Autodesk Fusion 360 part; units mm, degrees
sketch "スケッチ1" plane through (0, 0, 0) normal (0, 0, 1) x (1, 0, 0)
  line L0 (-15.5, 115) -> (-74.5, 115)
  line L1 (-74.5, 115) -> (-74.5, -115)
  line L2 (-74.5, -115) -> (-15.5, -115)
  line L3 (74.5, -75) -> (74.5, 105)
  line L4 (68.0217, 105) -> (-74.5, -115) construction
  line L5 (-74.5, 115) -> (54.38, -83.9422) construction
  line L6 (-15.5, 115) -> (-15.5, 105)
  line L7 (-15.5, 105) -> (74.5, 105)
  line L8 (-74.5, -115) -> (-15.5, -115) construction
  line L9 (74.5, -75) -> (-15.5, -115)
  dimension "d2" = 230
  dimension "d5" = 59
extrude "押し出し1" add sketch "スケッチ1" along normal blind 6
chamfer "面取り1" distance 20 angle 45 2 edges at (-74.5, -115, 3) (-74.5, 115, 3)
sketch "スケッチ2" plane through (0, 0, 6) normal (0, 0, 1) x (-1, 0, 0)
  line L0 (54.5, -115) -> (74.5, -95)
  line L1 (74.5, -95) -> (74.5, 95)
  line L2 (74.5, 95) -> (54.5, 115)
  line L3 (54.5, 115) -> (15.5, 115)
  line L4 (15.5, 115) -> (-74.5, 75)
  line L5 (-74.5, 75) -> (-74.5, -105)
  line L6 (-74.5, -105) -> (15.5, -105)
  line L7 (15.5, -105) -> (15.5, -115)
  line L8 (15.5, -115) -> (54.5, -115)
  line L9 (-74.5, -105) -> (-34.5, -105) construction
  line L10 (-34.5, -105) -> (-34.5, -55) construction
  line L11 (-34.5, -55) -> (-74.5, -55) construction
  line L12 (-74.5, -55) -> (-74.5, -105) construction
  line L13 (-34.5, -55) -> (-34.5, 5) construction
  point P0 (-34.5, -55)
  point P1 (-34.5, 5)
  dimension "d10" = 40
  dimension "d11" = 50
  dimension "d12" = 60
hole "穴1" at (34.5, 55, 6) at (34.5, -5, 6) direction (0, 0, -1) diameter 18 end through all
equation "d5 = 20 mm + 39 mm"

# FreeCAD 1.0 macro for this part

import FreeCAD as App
import Part
import Sketcher


def edges_at(feature, points):
    """Names of the edges that pass closest to the given points."""
    edges = feature.Shape.Edges
    near = lambda p: min(range(len(edges)), key=lambda i: edges[i].distToShape(Part.Vertex(*p))[0])
    return sorted({f"Edge{near(p) + 1}" for p in points})

doc = App.newDocument("Part")
body = doc.addObject("PartDesign::Body", "Body")

# Sketch on XY plane
sketch1 = body.newObject("Sketcher::SketchObject", "Sketch")
sketch1.AttachmentSupport = (doc.getObject("XY_Plane"), [""])
sketch1.MapMode = "FlatFace"
sketch1.addGeometry([
    Part.LineSegment(App.Vector(-16, 105, 0), App.Vector(-16, 115, 0)),  # 0
    Part.LineSegment(App.Vector(-16, 115, 0), App.Vector(-74, 115, 0)),  # 1
    Part.LineSegment(App.Vector(-74, 115, 0), App.Vector(-74, -115, 0)),  # 2
    Part.LineSegment(App.Vector(-74, -115, 0), App.Vector(-16, -115, 0)),  # 3
    Part.LineSegment(App.Vector(-16, -115, 0), App.Vector(74, -75, 0)),  # 4
    Part.LineSegment(App.Vector(74, -75, 0), App.Vector(74, 105, 0)),  # 5
    Part.LineSegment(App.Vector(74, 105, 0), App.Vector(-16, 105, 0)),  # 6
], False)
sketch1.addConstraint([
    Sketcher.Constraint("Coincident", 0, 2, 1, 1),
    Sketcher.Constraint("Coincident", 1, 2, 2, 1),
    Sketcher.Constraint("Coincident", 2, 2, 3, 1),
    Sketcher.Constraint("Coincident", 3, 2, 4, 1),
    Sketcher.Constraint("Coincident", 4, 2, 5, 1),
    Sketcher.Constraint("Coincident", 5, 2, 6, 1),
    Sketcher.Constraint("Coincident", 6, 2, 0, 1),
    Sketcher.Constraint("Vertical", 0),
    Sketcher.Constraint("Horizontal", 1),
    Sketcher.Constraint("Vertical", 2),
    Sketcher.Constraint("Horizontal", 3),
    Sketcher.Constraint("Vertical", 5),
    Sketcher.Constraint("Horizontal", 6),
    Sketcher.Constraint("Symmetric", 0, 2, 3, 2, -1),
    Sketcher.Constraint("DistanceX", 1, 2, 1, 1, 59.0),
    Sketcher.Constraint("DistanceY", 2, 2, 2, 1, 230.0),
    Sketcher.Constraint("DistanceX", 6, 2, 6, 1, 90.0),
    Sketcher.Constraint("DistanceY", 0, 1, 0, 2, 10.0),
    Sketcher.Constraint("DistanceY", 5, 1, 5, 2, 180.0),
    Sketcher.Constraint("DistanceX", 0, 2, -1, 1, 15.5),
])
pad1 = body.newObject("PartDesign::Pad", "Pad")
pad1.Profile = sketch1
pad1.Length = 6
doc.recompute()

chamfer = body.newObject("PartDesign::Chamfer", "Chamfer")
chamfer.Base = (pad1, edges_at(pad1, [(-74.5, -115, 3), (-74.5, 115, 3)]))
chamfer.Size = 20

# Sketch on XY plane
sketch2 = body.newObject("Sketcher::SketchObject", "Sketch001")
sketch2.AttachmentSupport = (doc.getObject("XY_Plane"), [""])
sketch2.MapMode = "FlatFace"
sketch2.AttachmentOffset = App.Placement(App.Vector(0, 0, 6), App.Rotation())
sketch2.addGeometry([
    Part.Circle(App.Vector(34, 55, 0), App.Vector(0, 0, 1), 9),
    Part.Circle(App.Vector(34, -5, 0), App.Vector(0, 0, 1), 9),
], False)
sketch2.addConstraint([
    Sketcher.Constraint("Equal", 0, 1),
    Sketcher.Constraint("Vertical", 0, 3, 1, 3),
    Sketcher.Constraint("Diameter", 0, 18.0),
    Sketcher.Constraint("DistanceY", -1, 1, 0, 3, 55.0),
    Sketcher.Constraint("DistanceY", 1, 3, -1, 1, 5.0),
    Sketcher.Constraint("DistanceX", -1, 1, 0, 3, 34.5),
])
doc.recompute()
hole = body.newObject("PartDesign::Hole", "Hole")
hole.Profile = sketch2
hole.ThreadType = "None"
hole.Diameter = 18
hole.DepthType = "ThroughAll"

doc.recompute()
